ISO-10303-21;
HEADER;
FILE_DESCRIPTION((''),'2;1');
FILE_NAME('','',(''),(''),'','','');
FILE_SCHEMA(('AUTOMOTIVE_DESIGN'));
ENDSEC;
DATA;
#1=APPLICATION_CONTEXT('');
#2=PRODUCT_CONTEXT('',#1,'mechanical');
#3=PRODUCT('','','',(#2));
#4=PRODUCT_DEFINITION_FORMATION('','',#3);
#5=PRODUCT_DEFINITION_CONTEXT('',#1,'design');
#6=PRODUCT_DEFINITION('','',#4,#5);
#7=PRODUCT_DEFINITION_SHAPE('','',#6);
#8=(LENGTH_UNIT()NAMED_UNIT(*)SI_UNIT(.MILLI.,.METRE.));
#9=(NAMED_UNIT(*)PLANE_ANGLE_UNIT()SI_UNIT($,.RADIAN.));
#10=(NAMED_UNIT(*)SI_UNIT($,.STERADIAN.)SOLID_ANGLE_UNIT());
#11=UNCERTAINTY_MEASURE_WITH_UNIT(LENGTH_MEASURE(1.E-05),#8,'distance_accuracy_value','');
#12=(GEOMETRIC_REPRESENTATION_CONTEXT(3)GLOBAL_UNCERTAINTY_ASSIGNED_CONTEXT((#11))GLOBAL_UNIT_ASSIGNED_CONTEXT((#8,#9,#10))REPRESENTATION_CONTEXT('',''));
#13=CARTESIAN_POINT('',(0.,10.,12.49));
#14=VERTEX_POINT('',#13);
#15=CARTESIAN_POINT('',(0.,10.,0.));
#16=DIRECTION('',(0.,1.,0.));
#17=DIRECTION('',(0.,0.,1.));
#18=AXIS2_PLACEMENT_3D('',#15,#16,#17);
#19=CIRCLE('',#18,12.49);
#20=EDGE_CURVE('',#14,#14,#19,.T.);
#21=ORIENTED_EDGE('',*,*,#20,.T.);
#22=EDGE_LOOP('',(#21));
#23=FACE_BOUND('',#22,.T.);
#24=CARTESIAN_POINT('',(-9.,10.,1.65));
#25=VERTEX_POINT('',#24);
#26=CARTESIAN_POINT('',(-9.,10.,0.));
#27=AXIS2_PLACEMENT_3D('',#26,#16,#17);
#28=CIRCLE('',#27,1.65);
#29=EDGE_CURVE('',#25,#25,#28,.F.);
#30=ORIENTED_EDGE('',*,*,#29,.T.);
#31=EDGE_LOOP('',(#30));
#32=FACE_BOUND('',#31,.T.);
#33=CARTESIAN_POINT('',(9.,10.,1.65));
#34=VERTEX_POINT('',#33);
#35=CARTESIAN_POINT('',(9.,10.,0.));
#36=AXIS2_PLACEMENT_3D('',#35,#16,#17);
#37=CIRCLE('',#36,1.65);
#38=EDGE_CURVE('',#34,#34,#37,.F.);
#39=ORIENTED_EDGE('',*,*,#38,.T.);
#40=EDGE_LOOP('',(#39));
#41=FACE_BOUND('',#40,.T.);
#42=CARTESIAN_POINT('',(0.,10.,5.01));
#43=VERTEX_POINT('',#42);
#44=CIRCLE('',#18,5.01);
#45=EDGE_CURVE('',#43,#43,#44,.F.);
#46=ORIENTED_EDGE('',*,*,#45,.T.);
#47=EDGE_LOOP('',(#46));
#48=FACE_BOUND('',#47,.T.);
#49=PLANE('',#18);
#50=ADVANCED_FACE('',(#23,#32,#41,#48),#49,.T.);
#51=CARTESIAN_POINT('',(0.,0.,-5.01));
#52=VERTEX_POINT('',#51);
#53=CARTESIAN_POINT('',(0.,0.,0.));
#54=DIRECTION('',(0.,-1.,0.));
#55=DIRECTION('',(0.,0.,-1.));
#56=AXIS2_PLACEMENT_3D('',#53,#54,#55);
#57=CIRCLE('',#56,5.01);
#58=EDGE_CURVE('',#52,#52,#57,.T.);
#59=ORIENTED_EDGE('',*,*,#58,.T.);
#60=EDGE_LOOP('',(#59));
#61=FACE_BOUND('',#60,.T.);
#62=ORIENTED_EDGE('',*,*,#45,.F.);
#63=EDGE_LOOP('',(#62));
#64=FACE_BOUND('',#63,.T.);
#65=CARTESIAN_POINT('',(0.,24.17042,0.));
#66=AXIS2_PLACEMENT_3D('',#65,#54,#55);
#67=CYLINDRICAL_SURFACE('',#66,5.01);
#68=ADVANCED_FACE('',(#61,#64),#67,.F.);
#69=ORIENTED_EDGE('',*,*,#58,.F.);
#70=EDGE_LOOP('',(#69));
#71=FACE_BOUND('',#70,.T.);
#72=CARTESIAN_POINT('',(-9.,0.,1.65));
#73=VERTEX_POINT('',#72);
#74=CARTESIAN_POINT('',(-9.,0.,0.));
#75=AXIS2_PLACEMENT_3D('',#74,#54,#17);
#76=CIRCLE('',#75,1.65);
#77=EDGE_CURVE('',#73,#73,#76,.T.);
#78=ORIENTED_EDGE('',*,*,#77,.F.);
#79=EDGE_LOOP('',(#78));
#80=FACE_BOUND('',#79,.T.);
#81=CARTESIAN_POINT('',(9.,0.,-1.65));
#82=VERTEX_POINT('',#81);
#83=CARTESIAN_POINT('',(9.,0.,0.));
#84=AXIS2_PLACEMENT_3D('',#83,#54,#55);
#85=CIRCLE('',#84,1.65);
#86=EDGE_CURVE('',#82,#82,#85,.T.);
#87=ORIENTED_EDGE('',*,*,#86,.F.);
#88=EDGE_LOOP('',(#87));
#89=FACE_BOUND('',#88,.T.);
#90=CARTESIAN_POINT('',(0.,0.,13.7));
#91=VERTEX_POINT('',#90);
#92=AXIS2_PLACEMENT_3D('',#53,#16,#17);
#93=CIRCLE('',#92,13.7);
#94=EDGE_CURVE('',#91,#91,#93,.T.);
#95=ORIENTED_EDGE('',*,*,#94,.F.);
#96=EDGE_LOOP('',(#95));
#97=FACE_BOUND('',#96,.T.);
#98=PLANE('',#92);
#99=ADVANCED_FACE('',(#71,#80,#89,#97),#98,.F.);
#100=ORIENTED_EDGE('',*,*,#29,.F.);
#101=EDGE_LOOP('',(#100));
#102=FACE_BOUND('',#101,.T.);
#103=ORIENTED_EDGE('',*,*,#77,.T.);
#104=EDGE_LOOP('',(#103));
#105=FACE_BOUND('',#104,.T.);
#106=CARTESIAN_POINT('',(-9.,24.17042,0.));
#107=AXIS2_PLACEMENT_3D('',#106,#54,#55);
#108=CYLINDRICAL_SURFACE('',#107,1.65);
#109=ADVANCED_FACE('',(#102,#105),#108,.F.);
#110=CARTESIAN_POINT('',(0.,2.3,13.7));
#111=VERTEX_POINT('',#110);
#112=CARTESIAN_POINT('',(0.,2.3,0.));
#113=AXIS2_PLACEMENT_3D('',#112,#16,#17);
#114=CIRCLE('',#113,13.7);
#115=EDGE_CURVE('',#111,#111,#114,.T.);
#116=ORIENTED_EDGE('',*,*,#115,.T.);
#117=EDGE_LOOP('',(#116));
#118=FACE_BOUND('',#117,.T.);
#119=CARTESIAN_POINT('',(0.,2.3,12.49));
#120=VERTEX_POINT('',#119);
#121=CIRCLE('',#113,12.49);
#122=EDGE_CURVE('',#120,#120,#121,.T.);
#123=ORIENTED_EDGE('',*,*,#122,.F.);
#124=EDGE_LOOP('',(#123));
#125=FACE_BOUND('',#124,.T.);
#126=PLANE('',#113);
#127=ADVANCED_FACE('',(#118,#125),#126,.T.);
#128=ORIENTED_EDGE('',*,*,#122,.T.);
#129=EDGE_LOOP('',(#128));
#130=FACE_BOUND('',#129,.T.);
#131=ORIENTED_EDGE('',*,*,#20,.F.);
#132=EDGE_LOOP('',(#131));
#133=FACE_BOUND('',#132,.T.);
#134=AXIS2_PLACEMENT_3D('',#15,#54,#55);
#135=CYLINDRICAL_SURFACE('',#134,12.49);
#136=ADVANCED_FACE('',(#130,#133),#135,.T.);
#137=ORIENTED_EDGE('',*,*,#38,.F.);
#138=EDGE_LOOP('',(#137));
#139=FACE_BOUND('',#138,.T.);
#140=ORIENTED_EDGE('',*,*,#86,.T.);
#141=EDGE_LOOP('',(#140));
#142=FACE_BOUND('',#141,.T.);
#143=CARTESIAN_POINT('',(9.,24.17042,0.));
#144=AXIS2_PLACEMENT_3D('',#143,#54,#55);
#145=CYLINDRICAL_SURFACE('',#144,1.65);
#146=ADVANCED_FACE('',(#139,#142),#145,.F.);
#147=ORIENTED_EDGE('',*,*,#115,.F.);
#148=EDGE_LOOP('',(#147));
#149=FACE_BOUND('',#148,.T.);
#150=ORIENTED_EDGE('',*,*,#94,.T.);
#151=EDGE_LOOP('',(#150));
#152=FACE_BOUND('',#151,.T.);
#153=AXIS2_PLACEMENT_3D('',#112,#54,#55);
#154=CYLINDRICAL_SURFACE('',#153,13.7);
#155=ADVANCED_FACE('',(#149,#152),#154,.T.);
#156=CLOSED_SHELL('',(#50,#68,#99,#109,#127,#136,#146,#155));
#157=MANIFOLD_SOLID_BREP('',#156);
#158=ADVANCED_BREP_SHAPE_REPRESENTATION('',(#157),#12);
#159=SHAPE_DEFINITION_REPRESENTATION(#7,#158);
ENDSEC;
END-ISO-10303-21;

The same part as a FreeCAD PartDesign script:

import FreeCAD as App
import Part
import Sketcher
from FreeCAD import Vector

doc = App.newDocument("Part")
body = doc.addObject("PartDesign::Body", "Body")

# Sketch on XZ plane
sketch1 = body.newObject("Sketcher::SketchObject", "Sketch")
sketch1.AttachmentSupport = (doc.getObject("XZ_Plane"), [""])
sketch1.MapMode = "FlatFace"
sketch1.addGeometry(Part.Circle(Vector(0, 0, 0), Vector(0, 0, 1), 13.7), False)
sketch1.addConstraint([
    Sketcher.Constraint("Coincident", 0, 3, -1, 1),
    Sketcher.Constraint("Diameter", 0, 27.4),
])
pad1 = body.newObject("PartDesign::Pad", "Pad")
pad1.Profile = sketch1
pad1.Length = 2.3
pad1.Reversed = True

# Sketch on XZ plane
sketch2 = body.newObject("Sketcher::SketchObject", "Sketch001")
sketch2.AttachmentSupport = (doc.getObject("XZ_Plane"), [""])
sketch2.MapMode = "FlatFace"
sketch2.AttachmentOffset = App.Placement(Vector(0, 0, -2.3), App.Rotation())
sketch2.addGeometry(Part.Circle(Vector(0, 0, 0), Vector(0, 0, 1), 12.49), False)
sketch2.addConstraint([
    Sketcher.Constraint("Coincident", 0, 3, -1, 1),
    Sketcher.Constraint("Diameter", 0, 24.98),
])
pad2 = body.newObject("PartDesign::Pad", "Pad001")
pad2.Profile = sketch2
pad2.Length = 7.7
pad2.Reversed = True

# Sketch on XZ plane
sketch3 = body.newObject("Sketcher::SketchObject", "Sketch002")
sketch3.AttachmentSupport = (doc.getObject("XZ_Plane"), [""])
sketch3.MapMode = "FlatFace"
sketch3.addGeometry([
    Part.Circle(Vector(0, 0, 0), Vector(0, 0, 1), 5.01),
    Part.Circle(Vector(9, 0, 0), Vector(0, 0, 1), 1.65),
    Part.Circle(Vector(-9, 0, 0), Vector(0, 0, 1), 1.65),
], False)
sketch3.addConstraint([
    Sketcher.Constraint("Coincident", 0, 3, -1, 1),
    Sketcher.Constraint("Equal", 1, 2),
    Sketcher.Constraint("Symmetric", 1, 3, 2, 3, -1, 1),
    Sketcher.Constraint("PointOnObject", 1, 3, -1),
    Sketcher.Constraint("Diameter", 1, 3.3),
    Sketcher.Constraint("Diameter", 0, 10.02),
    Sketcher.Constraint("DistanceX", -1, 1, 1, 3, 9.0),
])
pocket1 = body.newObject("PartDesign::Pocket", "Pocket")
pocket1.Profile = sketch3
pocket1.Length = 10

doc.recompute()
